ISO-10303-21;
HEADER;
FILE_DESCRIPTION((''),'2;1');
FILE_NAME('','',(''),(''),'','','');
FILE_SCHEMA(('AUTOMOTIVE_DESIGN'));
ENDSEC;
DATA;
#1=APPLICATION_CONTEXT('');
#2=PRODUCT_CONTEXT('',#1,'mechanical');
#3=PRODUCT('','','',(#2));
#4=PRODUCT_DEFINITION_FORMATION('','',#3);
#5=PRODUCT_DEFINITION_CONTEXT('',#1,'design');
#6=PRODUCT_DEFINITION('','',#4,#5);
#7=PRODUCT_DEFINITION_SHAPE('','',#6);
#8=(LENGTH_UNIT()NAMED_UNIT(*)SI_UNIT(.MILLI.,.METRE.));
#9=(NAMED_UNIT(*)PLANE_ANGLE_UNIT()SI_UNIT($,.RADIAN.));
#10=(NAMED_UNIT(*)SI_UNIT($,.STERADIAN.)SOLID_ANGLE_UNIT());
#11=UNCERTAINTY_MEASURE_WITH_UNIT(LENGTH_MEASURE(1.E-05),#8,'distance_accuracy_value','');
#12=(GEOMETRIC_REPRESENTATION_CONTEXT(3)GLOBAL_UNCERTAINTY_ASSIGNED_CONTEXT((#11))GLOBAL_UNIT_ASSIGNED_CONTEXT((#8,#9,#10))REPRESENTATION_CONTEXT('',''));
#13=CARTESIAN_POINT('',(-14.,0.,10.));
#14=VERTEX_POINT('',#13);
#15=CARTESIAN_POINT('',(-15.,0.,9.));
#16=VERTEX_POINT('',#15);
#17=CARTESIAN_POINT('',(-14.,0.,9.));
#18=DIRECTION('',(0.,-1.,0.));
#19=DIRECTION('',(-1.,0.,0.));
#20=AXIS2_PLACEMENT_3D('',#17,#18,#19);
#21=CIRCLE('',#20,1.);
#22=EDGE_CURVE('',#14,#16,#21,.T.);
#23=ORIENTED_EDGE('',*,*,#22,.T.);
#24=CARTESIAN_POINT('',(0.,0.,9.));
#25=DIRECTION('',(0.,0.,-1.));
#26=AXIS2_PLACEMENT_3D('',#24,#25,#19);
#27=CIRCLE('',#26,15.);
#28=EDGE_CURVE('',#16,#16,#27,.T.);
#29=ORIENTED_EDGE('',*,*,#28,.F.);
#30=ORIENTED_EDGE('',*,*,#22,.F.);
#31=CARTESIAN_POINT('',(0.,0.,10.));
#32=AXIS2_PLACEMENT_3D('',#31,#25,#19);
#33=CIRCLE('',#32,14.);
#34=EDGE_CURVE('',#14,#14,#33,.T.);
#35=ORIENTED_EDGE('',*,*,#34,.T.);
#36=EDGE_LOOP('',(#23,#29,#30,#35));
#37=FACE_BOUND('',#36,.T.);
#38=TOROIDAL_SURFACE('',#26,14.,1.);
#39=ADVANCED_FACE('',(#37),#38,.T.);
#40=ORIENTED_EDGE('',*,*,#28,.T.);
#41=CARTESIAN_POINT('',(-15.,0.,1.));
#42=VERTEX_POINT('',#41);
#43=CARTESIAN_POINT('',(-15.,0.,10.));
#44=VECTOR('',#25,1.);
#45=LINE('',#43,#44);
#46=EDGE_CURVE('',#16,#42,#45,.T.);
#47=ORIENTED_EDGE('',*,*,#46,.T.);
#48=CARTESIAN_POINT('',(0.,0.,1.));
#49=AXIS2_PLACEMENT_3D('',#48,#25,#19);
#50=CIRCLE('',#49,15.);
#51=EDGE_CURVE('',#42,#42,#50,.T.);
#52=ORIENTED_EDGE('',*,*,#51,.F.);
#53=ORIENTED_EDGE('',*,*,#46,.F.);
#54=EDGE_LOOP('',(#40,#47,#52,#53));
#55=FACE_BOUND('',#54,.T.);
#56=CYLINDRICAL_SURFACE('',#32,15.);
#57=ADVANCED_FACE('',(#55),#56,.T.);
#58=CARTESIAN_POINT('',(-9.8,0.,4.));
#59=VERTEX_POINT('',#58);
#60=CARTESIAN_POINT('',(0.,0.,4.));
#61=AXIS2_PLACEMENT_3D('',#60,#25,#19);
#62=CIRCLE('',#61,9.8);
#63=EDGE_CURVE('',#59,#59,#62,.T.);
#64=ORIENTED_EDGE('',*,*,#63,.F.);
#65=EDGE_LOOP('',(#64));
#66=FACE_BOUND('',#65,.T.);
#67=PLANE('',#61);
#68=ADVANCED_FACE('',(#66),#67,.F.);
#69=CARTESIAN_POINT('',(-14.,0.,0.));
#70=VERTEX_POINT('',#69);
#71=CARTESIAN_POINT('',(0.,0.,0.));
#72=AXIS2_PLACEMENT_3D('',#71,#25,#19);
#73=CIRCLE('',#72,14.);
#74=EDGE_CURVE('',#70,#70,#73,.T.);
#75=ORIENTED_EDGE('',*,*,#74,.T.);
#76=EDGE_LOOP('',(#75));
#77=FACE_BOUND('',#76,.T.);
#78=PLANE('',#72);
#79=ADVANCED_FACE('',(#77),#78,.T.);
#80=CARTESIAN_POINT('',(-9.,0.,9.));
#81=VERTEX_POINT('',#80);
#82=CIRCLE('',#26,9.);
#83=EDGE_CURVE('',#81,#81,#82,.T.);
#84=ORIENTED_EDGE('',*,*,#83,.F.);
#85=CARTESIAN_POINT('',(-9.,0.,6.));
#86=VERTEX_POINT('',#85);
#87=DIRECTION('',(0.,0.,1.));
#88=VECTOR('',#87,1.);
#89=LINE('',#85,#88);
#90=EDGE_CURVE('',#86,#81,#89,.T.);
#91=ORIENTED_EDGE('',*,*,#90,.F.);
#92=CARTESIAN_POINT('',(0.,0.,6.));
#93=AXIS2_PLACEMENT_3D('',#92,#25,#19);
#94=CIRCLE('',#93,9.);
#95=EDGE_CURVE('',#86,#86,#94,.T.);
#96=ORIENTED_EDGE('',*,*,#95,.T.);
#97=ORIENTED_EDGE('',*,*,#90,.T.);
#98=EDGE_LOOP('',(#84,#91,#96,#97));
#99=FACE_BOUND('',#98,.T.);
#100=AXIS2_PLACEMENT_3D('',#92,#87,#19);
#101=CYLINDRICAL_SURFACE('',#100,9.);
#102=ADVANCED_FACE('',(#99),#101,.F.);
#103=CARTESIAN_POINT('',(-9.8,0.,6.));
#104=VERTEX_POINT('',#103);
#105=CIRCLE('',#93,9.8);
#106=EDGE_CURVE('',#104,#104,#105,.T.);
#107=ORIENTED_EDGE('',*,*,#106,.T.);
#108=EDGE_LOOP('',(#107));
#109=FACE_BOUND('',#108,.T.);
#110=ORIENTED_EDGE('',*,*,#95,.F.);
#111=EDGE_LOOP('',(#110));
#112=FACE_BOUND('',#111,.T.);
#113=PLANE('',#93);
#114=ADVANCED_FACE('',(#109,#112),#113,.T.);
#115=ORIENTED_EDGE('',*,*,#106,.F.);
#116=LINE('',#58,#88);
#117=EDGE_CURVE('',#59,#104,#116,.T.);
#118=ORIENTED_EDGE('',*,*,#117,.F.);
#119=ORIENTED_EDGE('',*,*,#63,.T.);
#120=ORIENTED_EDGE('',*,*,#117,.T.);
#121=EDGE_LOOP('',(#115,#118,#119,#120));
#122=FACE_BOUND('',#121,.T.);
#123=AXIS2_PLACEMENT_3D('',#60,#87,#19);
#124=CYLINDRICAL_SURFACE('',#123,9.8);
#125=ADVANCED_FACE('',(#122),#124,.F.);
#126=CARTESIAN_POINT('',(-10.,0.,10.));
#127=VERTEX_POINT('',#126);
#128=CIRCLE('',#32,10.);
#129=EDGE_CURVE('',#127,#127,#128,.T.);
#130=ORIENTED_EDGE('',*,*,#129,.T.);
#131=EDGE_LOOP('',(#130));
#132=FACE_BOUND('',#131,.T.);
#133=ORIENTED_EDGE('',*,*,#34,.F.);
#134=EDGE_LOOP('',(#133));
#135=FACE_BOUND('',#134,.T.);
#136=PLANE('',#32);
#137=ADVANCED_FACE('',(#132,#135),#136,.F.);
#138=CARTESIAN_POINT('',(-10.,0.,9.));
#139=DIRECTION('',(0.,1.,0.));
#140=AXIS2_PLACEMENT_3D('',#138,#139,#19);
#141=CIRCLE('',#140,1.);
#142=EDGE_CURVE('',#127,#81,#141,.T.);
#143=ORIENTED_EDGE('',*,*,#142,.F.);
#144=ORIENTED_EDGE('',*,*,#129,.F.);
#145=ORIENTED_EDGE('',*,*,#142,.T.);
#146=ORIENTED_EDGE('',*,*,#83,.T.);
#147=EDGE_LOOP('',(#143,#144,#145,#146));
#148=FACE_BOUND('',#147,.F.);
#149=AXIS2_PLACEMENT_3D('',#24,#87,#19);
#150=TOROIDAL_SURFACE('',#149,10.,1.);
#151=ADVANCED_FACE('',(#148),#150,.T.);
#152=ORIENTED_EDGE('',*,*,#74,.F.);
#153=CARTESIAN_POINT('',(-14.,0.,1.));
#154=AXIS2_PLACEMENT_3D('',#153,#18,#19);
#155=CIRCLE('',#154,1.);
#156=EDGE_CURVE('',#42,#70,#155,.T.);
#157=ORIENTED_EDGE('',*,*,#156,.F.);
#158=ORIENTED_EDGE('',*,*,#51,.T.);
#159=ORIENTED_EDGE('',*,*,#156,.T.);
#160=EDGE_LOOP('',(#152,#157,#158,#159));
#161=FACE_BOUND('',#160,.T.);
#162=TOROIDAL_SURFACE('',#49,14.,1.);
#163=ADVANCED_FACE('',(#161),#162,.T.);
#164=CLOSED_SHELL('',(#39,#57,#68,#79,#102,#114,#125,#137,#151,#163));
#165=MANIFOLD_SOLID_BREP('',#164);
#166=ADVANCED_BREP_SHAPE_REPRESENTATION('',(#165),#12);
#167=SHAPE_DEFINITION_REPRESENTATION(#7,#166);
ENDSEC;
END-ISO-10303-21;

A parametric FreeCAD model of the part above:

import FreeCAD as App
import Part
import Sketcher


def edges_at(feature, points):
    """Names of the edges that pass closest to the given points."""
    edges = feature.Shape.Edges
    near = lambda p: min(range(len(edges)), key=lambda i: edges[i].distToShape(Part.Vertex(*p))[0])
    return sorted({f"Edge{near(p) + 1}" for p in points})

doc = App.newDocument("Part")
body = doc.addObject("PartDesign::Body", "Body")

# Sketch on XZ plane
sketch1 = doc.addObject("Sketcher::SketchObject", "Sketch")
body.addObject(sketch1)
sketch1.AttachmentSupport = (doc.XZ_Plane, [""])
sketch1.MapMode = "FlatFace"
sketch1.addGeometry(Part.LineSegment(App.Vector(-15, 0, 0), App.Vector(0, 0, 0)), False)
sketch1.addGeometry(Part.LineSegment(App.Vector(0, 0, 0), App.Vector(0, 4, 0)), False)
sketch1.addGeometry(Part.LineSegment(App.Vector(0, 4, 0), App.Vector(-9.8, 4, 0)), False)
sketch1.addGeometry(Part.LineSegment(App.Vector(-9.8, 4, 0), App.Vector(-9.8, 6, 0)), False)
sketch1.addGeometry(Part.LineSegment(App.Vector(-9.8, 6, 0), App.Vector(-9, 6, 0)), False)
sketch1.addGeometry(Part.LineSegment(App.Vector(-9, 6, 0), App.Vector(-9, 10, 0)), False)
sketch1.addGeometry(Part.LineSegment(App.Vector(-9, 10, 0), App.Vector(-15, 10, 0)), False)
sketch1.addGeometry(Part.LineSegment(App.Vector(-15, 10, 0), App.Vector(-15, 0, 0)), False)
sketch1.addConstraint(Sketcher.Constraint("Coincident", 0, 2, 1, 1))
sketch1.addConstraint(Sketcher.Constraint("Coincident", 1, 2, 2, 1))
sketch1.addConstraint(Sketcher.Constraint("Coincident", 2, 2, 3, 1))
sketch1.addConstraint(Sketcher.Constraint("Coincident", 3, 2, 4, 1))
sketch1.addConstraint(Sketcher.Constraint("Coincident", 4, 2, 5, 1))
sketch1.addConstraint(Sketcher.Constraint("Coincident", 5, 2, 6, 1))
sketch1.addConstraint(Sketcher.Constraint("Coincident", 6, 2, 7, 1))
sketch1.addConstraint(Sketcher.Constraint("Coincident", 7, 2, 0, 1))
sketch1.addConstraint(Sketcher.Constraint("Horizontal", 0))
sketch1.addConstraint(Sketcher.Constraint("Vertical", 1))
sketch1.addConstraint(Sketcher.Constraint("Horizontal", 2))
sketch1.addConstraint(Sketcher.Constraint("Vertical", 3))
sketch1.addConstraint(Sketcher.Constraint("Horizontal", 4))
sketch1.addConstraint(Sketcher.Constraint("Vertical", 5))
sketch1.addConstraint(Sketcher.Constraint("Horizontal", 6))
sketch1.addConstraint(Sketcher.Constraint("Vertical", 7))
sketch1.addConstraint(Sketcher.Constraint("Coincident", 0, 2, -1, 1))
sketch1.addConstraint(Sketcher.Constraint("Equal", 1, 5))
sketch1.addConstraint(Sketcher.Constraint("DistanceX", 0, 1, 0, 2, 15.0))
sketch1.addConstraint(Sketcher.Constraint("DistanceX", 6, 2, 6, 1, 6.0))
sketch1.addConstraint(Sketcher.Constraint("DistanceY", 1, 1, 1, 2, 4.0))
sketch1.addConstraint(Sketcher.Constraint("DistanceY", 3, 1, 3, 2, 2.0))
sketch1.addConstraint(Sketcher.Constraint("DistanceX", 2, 2, 2, 1, 9.8))
revolution = doc.addObject("PartDesign::Revolution", "Revolution")
body.addObject(revolution)
revolution.Profile = sketch1
revolution.ReferenceAxis = (sketch1, ["V_Axis"])
revolution.Angle = 360
doc.recompute()

fillet = doc.addObject("PartDesign::Fillet", "Fillet")
body.addObject(fillet)
fillet.Base = (revolution, edges_at(revolution, [(15, 0, 10)]))
fillet.Radius = 1
doc.recompute()

fillet2 = doc.addObject("PartDesign::Fillet", "Fillet001")
body.addObject(fillet2)
fillet2.Base = (fillet, edges_at(fillet, [(9, 0, 10)]))
fillet2.Radius = 1
doc.recompute()

fillet3 = doc.addObject("PartDesign::Fillet", "Fillet002")
body.addObject(fillet3)
fillet3.Base = (fillet2, edges_at(fillet2, [(15, 0, 0)]))
fillet3.Radius = 1

doc.recompute()
